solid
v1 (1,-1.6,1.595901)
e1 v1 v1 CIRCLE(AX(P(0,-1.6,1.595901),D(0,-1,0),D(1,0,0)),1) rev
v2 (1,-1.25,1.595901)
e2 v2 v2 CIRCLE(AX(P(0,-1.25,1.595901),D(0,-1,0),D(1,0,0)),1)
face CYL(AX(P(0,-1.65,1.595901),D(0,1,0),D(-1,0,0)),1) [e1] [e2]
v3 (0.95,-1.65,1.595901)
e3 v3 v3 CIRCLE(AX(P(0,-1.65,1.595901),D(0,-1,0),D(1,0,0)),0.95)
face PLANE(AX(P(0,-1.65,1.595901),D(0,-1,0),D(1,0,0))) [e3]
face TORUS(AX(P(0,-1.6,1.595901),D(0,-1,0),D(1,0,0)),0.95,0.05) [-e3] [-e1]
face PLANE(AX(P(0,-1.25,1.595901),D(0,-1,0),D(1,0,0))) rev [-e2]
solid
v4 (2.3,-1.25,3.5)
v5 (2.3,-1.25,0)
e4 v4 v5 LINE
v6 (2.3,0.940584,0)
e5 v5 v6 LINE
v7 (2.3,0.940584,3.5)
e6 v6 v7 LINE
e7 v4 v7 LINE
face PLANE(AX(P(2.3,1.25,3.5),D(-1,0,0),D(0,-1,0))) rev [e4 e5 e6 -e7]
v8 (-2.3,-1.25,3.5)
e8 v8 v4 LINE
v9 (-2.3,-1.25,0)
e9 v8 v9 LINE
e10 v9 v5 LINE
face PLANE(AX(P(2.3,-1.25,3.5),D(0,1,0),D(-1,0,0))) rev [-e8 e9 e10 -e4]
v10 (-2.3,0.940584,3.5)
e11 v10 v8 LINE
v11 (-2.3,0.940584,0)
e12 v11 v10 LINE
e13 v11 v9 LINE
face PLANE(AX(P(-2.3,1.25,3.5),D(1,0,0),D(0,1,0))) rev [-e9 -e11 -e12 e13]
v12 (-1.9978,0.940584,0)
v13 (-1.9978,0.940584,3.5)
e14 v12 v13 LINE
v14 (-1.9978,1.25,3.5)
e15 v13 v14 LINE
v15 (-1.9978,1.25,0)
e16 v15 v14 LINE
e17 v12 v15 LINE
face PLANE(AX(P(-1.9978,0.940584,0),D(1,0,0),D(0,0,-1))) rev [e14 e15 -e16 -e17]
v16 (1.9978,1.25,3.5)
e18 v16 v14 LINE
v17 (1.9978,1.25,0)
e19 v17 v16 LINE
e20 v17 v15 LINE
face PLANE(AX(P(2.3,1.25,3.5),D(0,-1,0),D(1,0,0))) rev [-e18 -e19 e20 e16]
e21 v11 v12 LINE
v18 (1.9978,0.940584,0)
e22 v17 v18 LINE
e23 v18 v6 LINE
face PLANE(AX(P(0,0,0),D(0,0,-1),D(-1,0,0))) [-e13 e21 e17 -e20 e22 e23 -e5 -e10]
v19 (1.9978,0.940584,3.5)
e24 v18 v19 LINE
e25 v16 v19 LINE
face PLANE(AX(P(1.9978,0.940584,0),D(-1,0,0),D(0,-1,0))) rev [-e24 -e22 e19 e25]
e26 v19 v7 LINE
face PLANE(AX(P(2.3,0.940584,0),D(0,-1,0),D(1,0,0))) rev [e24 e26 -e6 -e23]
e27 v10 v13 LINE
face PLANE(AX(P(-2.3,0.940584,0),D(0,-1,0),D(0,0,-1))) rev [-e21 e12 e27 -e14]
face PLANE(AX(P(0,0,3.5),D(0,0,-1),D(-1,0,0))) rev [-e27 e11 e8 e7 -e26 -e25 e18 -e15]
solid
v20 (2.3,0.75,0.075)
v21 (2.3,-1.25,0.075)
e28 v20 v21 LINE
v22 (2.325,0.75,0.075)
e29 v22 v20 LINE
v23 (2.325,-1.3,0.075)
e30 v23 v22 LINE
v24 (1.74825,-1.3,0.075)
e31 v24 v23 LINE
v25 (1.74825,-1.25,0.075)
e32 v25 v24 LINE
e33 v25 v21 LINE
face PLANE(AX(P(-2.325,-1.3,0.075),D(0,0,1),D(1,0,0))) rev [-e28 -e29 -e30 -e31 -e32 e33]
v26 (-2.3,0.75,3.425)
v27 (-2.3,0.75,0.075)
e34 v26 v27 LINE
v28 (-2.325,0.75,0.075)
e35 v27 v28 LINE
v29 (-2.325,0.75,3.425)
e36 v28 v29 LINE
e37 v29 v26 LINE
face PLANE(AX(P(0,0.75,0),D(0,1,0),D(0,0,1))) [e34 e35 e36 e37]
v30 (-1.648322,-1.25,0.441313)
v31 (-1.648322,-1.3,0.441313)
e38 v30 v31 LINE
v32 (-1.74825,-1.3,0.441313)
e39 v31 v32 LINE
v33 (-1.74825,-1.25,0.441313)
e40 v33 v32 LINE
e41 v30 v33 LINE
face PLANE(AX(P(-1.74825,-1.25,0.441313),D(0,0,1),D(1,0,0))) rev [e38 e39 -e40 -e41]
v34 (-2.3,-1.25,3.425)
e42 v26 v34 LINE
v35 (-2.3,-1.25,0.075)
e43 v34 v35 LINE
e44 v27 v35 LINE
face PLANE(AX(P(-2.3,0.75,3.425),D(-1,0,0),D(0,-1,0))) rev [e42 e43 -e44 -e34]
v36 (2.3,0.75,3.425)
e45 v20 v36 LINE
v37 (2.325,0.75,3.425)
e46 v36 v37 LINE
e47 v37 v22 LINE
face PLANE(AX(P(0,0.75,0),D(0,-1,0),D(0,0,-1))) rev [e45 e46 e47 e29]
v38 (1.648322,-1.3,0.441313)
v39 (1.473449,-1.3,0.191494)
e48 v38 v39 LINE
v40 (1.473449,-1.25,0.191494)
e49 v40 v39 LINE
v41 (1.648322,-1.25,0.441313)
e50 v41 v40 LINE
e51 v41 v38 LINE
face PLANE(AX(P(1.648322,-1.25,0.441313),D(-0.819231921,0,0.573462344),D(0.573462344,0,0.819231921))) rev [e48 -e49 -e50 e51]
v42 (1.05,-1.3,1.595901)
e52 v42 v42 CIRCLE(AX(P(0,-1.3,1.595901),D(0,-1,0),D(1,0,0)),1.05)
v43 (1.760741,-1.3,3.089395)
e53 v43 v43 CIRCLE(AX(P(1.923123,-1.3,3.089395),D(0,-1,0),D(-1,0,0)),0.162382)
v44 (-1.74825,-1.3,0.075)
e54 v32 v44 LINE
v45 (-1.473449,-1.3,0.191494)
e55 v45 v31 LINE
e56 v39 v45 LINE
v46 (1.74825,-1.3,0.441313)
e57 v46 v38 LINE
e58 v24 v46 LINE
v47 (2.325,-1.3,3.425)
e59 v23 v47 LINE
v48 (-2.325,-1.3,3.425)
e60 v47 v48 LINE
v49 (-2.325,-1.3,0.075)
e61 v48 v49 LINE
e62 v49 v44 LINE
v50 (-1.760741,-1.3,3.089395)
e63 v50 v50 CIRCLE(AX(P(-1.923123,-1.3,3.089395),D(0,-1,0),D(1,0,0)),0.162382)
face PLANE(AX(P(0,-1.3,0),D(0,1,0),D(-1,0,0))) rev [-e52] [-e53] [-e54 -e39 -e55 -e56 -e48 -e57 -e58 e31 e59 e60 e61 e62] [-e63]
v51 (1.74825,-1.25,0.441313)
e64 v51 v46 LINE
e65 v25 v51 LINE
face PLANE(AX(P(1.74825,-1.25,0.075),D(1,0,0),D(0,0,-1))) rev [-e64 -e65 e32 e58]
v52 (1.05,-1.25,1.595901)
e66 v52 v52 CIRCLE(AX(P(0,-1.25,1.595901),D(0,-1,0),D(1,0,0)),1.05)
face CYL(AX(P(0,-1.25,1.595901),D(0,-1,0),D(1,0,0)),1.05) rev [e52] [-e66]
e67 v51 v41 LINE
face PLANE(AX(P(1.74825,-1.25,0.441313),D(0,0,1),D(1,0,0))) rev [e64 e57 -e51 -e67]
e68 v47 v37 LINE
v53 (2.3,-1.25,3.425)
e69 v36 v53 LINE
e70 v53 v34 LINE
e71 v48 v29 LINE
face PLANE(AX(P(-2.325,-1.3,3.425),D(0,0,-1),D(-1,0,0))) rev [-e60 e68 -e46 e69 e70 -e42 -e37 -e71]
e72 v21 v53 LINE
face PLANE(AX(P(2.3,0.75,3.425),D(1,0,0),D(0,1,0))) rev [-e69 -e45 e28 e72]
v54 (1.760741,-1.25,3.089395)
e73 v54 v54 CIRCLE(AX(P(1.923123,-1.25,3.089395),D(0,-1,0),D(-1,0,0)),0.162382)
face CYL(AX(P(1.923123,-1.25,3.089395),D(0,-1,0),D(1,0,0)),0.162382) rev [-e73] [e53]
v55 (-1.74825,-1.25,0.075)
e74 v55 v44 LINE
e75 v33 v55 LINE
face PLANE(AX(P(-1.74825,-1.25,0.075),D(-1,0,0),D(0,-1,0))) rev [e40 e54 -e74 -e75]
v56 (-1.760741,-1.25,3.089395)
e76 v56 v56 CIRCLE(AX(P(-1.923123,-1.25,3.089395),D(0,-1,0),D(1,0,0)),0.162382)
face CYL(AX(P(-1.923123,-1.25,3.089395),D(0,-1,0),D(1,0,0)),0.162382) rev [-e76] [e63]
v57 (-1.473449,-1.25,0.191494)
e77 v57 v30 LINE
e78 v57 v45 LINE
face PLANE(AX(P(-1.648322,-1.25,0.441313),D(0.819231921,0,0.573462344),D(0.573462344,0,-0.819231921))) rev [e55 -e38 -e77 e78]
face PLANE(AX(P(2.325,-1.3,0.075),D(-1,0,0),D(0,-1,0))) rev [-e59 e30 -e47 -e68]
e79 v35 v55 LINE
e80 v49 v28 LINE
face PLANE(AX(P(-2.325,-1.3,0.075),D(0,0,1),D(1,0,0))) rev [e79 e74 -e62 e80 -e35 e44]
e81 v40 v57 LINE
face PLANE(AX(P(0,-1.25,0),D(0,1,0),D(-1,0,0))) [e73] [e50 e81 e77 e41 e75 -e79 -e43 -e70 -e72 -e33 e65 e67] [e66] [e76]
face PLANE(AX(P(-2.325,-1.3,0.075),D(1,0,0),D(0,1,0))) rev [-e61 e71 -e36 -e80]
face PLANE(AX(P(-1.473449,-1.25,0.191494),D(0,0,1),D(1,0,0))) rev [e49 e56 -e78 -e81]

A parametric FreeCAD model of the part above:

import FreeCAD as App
import Part
import Sketcher


def edges_at(feature, points):
    """Names of the edges that pass closest to the given points."""
    edges = feature.Shape.Edges
    near = lambda p: min(range(len(edges)), key=lambda i: edges[i].distToShape(Part.Vertex(*p))[0])
    return sorted({f"Edge{near(p) + 1}" for p in points})


def add_polygon(sketch, points):
    """Adds a closed chain of lines whose ends are joined by coincident constraints."""
    first, n = sketch.GeometryCount, len(points)
    for a, b in zip(points, points[1:] + points[:1]):
        sketch.addGeometry(Part.LineSegment(App.Vector(*a, 0), App.Vector(*b, 0)), False)
    for i in range(n):
        sketch.addConstraint(Sketcher.Constraint("Coincident", first + i, 2, first + (i + 1) % n, 1))

doc = App.newDocument("Part")
params = doc.addObject("Spreadsheet::Sheet", "Params")
for row, (alias, value) in enumerate([
    ("sketch1_width", "4.6 mm"),
    ("sketch1_height", "2.5 mm"),
    ("pad1_length", "3.5 mm"),
    ("sketch3_width", "4.65 mm"),
    ("sketch3_height", "3.35 mm"),
    ("pad2_length", "0.05 mm"),
    ("sketch4_diameter", "2.1 mm"),
    ("pocket2_length", "0.05 mm"),
    ("sketch5_height", "3.35 mm"),
    ("pad3_length", "2 mm"),
    ("sketch6_diameter", "2 mm"),
    ("pad4_length", "0.4 mm"),
    ("fillet_radius", "0.05 mm"),
], start=1):
    params.set(f"A{row}", alias)
    params.set(f"B{row}", "=" + value)
    params.setAlias(f"B{row}", alias)

body = doc.addObject("PartDesign::Body", "Body")

sketch1 = body.newObject("Sketcher::SketchObject", "Sketch")
sketch1.AttachmentSupport = (doc.getObject("XY_Plane"), [""])
sketch1.MapMode = "FlatFace"
add_polygon(sketch1, [(-2.3, 1.2), (-2.3, -1.2), (2.3, -1.2), (2.3, 1.2)])
sketch1.addConstraint([
    Sketcher.Constraint("Vertical", 0),
    Sketcher.Constraint("Horizontal", 1),
    Sketcher.Constraint("Vertical", 2),
    Sketcher.Constraint("Horizontal", 3),
    Sketcher.Constraint("Symmetric", 0, 2, 2, 2, -1, 1),
    Sketcher.Constraint("DistanceX", 1, 1, 1, 2, 4.6),
    Sketcher.Constraint("DistanceY", 0, 2, 0, 1, 2.5),
])
sketch1.setExpression("Constraints[9]", "Params.sketch1_width")
sketch1.setExpression("Constraints[10]", "Params.sketch1_height")
pad1 = body.newObject("PartDesign::Pad", "Pad")
pad1.Profile = sketch1
pad1.setExpression("Length", "Params.pad1_length")

sketch2 = body.newObject("Sketcher::SketchObject", "Sketch001")
sketch2.AttachmentSupport = (doc.getObject("XY_Plane"), [""])
sketch2.MapMode = "FlatFace"
sketch2.AttachmentOffset = App.Placement(App.Vector(0, 0, 3.5), App.Rotation())
add_polygon(sketch2, [(-2.3, 1.25), (-2.3, 0.94), (-2, 0.94), (-2, 1.25)])
add_polygon(sketch2, [(2, 1.25), (2, 0.94), (2.3, 0.94), (2.3, 1.25)])
sketch2.addConstraint([
    Sketcher.Constraint("Vertical", 0),
    Sketcher.Constraint("Horizontal", 1),
    Sketcher.Constraint("Vertical", 2),
    Sketcher.Constraint("Horizontal", 3),
    Sketcher.Constraint("Vertical", 4),
    Sketcher.Constraint("Horizontal", 5),
    Sketcher.Constraint("Vertical", 6),
    Sketcher.Constraint("Horizontal", 7),
    Sketcher.Constraint("Symmetric", 1, 2, 4, 2, -2),
    Sketcher.Constraint("Symmetric", 3, 2, 6, 2, -2),
    Sketcher.Constraint("DistanceX", 0, 2, -1, 1, 2.3),
    Sketcher.Constraint("DistanceY", -1, 1, 2, 2, 1.25),
    Sketcher.Constraint("DistanceX", 1, 1, 1, 2, 0.3022),
    Sketcher.Constraint("DistanceY", 0, 2, 0, 1, 0.309416),
])
pocket1 = body.newObject("PartDesign::Pocket", "Pocket")
pocket1.Profile = sketch2
pocket1.Type = "ThroughAll"
body2 = doc.addObject("PartDesign::Body", "Body001")

sketch3 = body2.newObject("Sketcher::SketchObject", "Sketch002")
sketch3.AttachmentSupport = (doc.getObject("XZ_Plane001"), [""])
sketch3.MapMode = "FlatFace"
sketch3.AttachmentOffset = App.Placement(App.Vector(0, 0, 1.25), App.Rotation())
add_polygon(sketch3, [(-2.3, 3.4), (-2.3, 0.1), (2.3, 0.1), (2.3, 3.4)])
sketch3.addConstraint([
    Sketcher.Constraint("Vertical", 0),
    Sketcher.Constraint("Horizontal", 1),
    Sketcher.Constraint("Vertical", 2),
    Sketcher.Constraint("Horizontal", 3),
    Sketcher.Constraint("DistanceX", 1, 1, 1, 2, 4.65),
    Sketcher.Constraint("DistanceY", 0, 2, 0, 1, 3.35),
    Sketcher.Constraint("DistanceX", 0, 2, -1, 1, 2.325),
    Sketcher.Constraint("DistanceY", -1, 1, 0, 2, 0.075),
])
sketch3.setExpression("Constraints[8]", "Params.sketch3_width")
sketch3.setExpression("Constraints[9]", "Params.sketch3_height")
pad2 = body2.newObject("PartDesign::Pad", "Pad001")
pad2.Profile = sketch3
pad2.setExpression("Length", "Params.pad2_length")

sketch4 = body2.newObject("Sketcher::SketchObject", "Sketch003")
sketch4.AttachmentSupport = (doc.getObject("XZ_Plane001"), [""])
sketch4.MapMode = "FlatFace"
sketch4.AttachmentOffset = App.Placement(App.Vector(0, 0, 1.3), App.Rotation())
sketch4.addGeometry(Part.Circle(App.Vector(-1.92, 3.09, 0), App.Vector(0, 0, 1), 0.16), False)
sketch4.addGeometry(Part.Circle(App.Vector(1.92, 3.09, 0), App.Vector(0, 0, 1), 0.16), False)
sketch4.addGeometry(Part.Circle(App.Vector(0, 1.6, 0), App.Vector(0, 0, 1), 1.05), False)
add_polygon(sketch4, [(-1.75, 0.44), (-1.75, 0.07), (1.75, 0.07), (1.75, 0.44), (1.65, 0.44), (1.47, 0.19), (-1.47, 0.19), (-1.65, 0.44)])
sketch4.addConstraint([
    Sketcher.Constraint("Vertical", 3),
    Sketcher.Constraint("Horizontal", 4),
    Sketcher.Constraint("Vertical", 5),
    Sketcher.Constraint("Horizontal", 6),
    Sketcher.Constraint("Horizontal", 8),
    Sketcher.Constraint("Horizontal", 10),
    Sketcher.Constraint("Equal", 0, 1),
    Sketcher.Constraint("Symmetric", 0, 3, 1, 3, -2),
    Sketcher.Constraint("Symmetric", 6, 2, 9, 2, -2),
    Sketcher.Constraint("PointOnObject", 2, 3, -2),
    Sketcher.Constraint("Equal", 6, 10),
    Sketcher.Constraint("Equal", 7, 9),
    Sketcher.Constraint("Diameter", 2, 2.1),
    Sketcher.Constraint("Diameter", 0, 0.324765),
    Sketcher.Constraint("DistanceX", 4, 1, 4, 2, 3.496499),
    Sketcher.Constraint("DistanceY", -1, 1, 3, 2, 0.075),
    Sketcher.Constraint("DistanceY", -1, 1, 2, 3, 1.595901),
    Sketcher.Constraint("DistanceX", 6, 2, 1, 3, 0.274801),
    Sketcher.Constraint("DistanceX", 7, 2, 4, 2, 0.274801),
    Sketcher.Constraint("DistanceY", 7, 2, 1, 3, 2.897901),
    Sketcher.Constraint("DistanceX", 6, 2, 6, 1, 0.099928),
    Sketcher.Constraint("DistanceY", 3, 2, 3, 1, 0.366313),
    Sketcher.Constraint("DistanceY", 5, 2, 1, 3, 2.648082),
])
sketch4.setExpression("Constraints[20]", "Params.sketch4_diameter")
pocket2 = body2.newObject("PartDesign::Pocket", "Pocket001")
pocket2.Profile = sketch4
pocket2.setExpression("Length", "Params.pocket2_length")

sketch5 = body2.newObject("Sketcher::SketchObject", "Sketch004")
sketch5.AttachmentSupport = (doc.getObject("XZ_Plane001"), [""])
sketch5.MapMode = "FlatFace"
sketch5.AttachmentOffset = App.Placement(App.Vector(0, 0, 1.25), App.Rotation())
add_polygon(sketch5, [(-2.325, 0.075), (-2.325, 3.425), (-2.3, 3.425), (-2.3, 0.075)])
add_polygon(sketch5, [(2.3, 0.075), (2.3, 3.425), (2.325, 3.425), (2.325, 0.075)])
sketch5.addConstraint([
    Sketcher.Constraint("Vertical", 0),
    Sketcher.Constraint("Horizontal", 1),
    Sketcher.Constraint("Vertical", 2),
    Sketcher.Constraint("Horizontal", 3),
    Sketcher.Constraint("Vertical", 4),
    Sketcher.Constraint("Horizontal", 5),
    Sketcher.Constraint("Vertical", 6),
    Sketcher.Constraint("Horizontal", 7),
    Sketcher.Constraint("Symmetric", 1, 2, 4, 2, -2),
    Sketcher.Constraint("Symmetric", 3, 2, 6, 2, -2),
    Sketcher.Constraint("DistanceY", 0, 1, 0, 2, 3.35),
    Sketcher.Constraint("DistanceX", 1, 2, -1, 1, 2.3),
    Sketcher.Constraint("DistanceX", 1, 1, 1, 2, 0.025),
    Sketcher.Constraint("DistanceY", -1, 1, 0, 2, 3.425),
])
sketch5.setExpression("Constraints[18]", "Params.sketch5_height")
pad3 = body2.newObject("PartDesign::Pad", "Pad002")
pad3.Profile = sketch5
pad3.setExpression("Length", "Params.pad3_length")
pad3.Reversed = True
body3 = doc.addObject("PartDesign::Body", "Body002")

sketch6 = body3.newObject("Sketcher::SketchObject", "Sketch005")
sketch6.AttachmentSupport = (doc.getObject("XZ_Plane002"), [""])
sketch6.MapMode = "FlatFace"
sketch6.AttachmentOffset = App.Placement(App.Vector(0, 0, 1.25), App.Rotation())
sketch6.addGeometry(Part.Circle(App.Vector(0, 1.6, 0), App.Vector(0, 0, 1), 1), False)
sketch6.addConstraint([
    Sketcher.Constraint("PointOnObject", 0, 3, -2),
    Sketcher.Constraint("Diameter", 0, 2.0),
    Sketcher.Constraint("DistanceY", -1, 1, 0, 3, 1.595901),
])
sketch6.setExpression("Constraints[1]", "Params.sketch6_diameter")
pad4 = body3.newObject("PartDesign::Pad", "Pad003")
pad4.Profile = sketch6
pad4.setExpression("Length", "Params.pad4_length")
doc.recompute()

fillet = body3.newObject("PartDesign::Fillet", "Fillet")
fillet.Base = (pad4, edges_at(pad4, [(-1, -1.65, 1.596)]))
fillet.setExpression("Radius", "Params.fillet_radius")

doc.recompute()
